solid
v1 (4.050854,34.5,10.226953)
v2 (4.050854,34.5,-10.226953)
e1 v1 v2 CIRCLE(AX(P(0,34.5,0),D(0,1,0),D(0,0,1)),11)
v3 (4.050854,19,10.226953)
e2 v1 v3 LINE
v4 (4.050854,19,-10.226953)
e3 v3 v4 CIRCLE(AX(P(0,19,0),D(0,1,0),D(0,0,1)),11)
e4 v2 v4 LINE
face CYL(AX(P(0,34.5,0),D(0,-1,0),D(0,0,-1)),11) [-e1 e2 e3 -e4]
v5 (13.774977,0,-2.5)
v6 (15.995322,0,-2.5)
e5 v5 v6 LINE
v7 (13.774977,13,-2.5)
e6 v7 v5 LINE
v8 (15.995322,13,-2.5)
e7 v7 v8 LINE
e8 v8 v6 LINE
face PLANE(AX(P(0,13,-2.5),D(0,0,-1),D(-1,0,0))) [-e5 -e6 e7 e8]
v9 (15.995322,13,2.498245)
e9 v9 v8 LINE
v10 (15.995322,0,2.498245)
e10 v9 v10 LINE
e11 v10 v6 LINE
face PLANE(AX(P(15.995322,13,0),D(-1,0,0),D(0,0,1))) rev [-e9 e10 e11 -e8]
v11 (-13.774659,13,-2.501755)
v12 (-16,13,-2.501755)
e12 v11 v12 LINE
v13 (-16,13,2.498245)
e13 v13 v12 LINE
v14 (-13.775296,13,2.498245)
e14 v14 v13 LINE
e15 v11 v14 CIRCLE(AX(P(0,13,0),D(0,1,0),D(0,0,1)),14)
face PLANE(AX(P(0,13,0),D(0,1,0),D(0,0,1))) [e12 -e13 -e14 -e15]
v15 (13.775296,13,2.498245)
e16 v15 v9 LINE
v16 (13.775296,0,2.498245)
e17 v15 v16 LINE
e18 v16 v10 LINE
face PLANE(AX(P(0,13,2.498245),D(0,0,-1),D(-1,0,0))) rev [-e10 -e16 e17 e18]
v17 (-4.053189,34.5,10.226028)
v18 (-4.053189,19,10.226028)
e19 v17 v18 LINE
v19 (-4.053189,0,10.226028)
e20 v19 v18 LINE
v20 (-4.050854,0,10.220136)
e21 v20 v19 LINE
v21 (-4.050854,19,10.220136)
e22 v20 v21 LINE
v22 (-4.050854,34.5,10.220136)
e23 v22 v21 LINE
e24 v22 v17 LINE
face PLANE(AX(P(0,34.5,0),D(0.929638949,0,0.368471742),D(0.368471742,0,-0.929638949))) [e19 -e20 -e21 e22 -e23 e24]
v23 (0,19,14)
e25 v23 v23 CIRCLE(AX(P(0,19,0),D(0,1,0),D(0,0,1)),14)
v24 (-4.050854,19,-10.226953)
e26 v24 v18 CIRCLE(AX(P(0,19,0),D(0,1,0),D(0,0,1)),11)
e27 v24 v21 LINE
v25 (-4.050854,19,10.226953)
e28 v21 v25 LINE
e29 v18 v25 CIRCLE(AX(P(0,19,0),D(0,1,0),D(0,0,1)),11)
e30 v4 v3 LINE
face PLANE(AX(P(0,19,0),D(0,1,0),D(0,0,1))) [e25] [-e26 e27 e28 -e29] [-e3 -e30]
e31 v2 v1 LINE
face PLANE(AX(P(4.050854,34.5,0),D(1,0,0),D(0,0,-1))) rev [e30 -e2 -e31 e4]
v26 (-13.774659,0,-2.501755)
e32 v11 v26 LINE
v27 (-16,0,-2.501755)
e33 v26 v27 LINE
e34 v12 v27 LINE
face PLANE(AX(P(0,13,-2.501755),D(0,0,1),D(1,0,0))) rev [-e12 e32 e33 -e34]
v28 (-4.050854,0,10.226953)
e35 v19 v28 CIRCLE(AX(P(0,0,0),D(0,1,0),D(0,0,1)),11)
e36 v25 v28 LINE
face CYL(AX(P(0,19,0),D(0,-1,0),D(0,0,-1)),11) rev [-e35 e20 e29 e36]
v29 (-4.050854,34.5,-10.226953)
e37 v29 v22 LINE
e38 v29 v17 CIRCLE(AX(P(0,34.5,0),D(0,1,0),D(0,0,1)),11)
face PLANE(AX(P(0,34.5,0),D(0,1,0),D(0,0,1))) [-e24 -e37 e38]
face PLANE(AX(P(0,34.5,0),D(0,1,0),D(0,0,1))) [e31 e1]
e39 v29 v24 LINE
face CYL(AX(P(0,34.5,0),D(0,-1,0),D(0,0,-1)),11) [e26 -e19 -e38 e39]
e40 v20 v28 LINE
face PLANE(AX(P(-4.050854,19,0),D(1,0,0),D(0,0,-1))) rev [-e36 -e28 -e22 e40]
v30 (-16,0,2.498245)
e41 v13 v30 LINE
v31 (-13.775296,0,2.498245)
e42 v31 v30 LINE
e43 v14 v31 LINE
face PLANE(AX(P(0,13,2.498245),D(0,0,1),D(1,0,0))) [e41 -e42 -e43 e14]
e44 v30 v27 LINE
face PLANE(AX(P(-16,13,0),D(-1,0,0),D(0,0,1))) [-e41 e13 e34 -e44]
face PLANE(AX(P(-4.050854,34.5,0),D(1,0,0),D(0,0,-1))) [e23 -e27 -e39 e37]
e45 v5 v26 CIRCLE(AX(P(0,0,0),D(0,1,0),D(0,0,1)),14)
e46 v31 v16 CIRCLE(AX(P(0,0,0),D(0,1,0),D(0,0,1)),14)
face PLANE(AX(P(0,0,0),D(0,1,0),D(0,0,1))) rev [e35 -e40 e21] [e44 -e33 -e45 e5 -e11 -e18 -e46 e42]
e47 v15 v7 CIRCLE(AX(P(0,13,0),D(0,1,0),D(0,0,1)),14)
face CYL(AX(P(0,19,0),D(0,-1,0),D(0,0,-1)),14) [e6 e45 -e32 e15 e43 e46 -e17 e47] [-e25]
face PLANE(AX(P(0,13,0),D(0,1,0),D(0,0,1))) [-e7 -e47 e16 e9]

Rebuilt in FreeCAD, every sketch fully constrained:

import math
import FreeCAD as App
import Part
import Sketcher
Q = App.Units.Quantity

doc = App.newDocument("Part")
body = doc.addObject("PartDesign::Body", "Body")
body.AllowCompound = True

sketch1 = doc.addObject("Sketcher::SketchObject", "Sketch")
body.addObject(sketch1)
sketch1.AttachmentSupport = (doc.XZ_Plane, [""])
sketch1.MapMode = "FlatFace"
sketch1.addGeometry(Part.LineSegment(App.Vector(-4.053189, 10.226028, 0), App.Vector(-4.050854, 10.220136, 0)), False)
sketch1.addGeometry(Part.LineSegment(App.Vector(-4.050854, 10.220136, 0), App.Vector(-4.050854, -10.226953, 0)), False)
sketch1.addGeometry(Part.ArcOfCircle(Part.Circle(App.Vector(0, 0, 0), App.Vector(0, 0, 1), 11), math.radians(-166.854053), math.radians(-111.608312)), False)
sketch1.addGeometry(Part.ArcOfCircle(Part.Circle(App.Vector(0, 0, 0), App.Vector(0, 0, 1), 11), math.radians(166.872829), math.radians(193.145947)), False)
sketch1.addGeometry(Part.ArcOfCircle(Part.Circle(App.Vector(0, 0, 0), App.Vector(0, 0, 1), 11), math.radians(111.621396), math.radians(166.872829)), False)
sketch1.addGeometry(Part.LineSegment(App.Vector(4.050854, -10.226953, 0), App.Vector(4.050854, 10.226953, 0)), False)
sketch1.addGeometry(Part.ArcOfCircle(Part.Circle(App.Vector(0, 0, 0), App.Vector(0, 0, 1), 11), math.radians(13.127171), math.radians(68.391688)), False)
sketch1.addGeometry(Part.ArcOfCircle(Part.Circle(App.Vector(0, 0, 0), App.Vector(0, 0, 1), 11), math.radians(0), math.radians(13.127171)), False)
sketch1.addGeometry(Part.ArcOfCircle(Part.Circle(App.Vector(0, 0, 0), App.Vector(0, 0, 1), 11), math.radians(-13.136559), math.radians(0)), False)
sketch1.addGeometry(Part.ArcOfCircle(Part.Circle(App.Vector(0, 0, 0), App.Vector(0, 0, 1), 11), math.radians(-68.391688), math.radians(-13.136559)), False)
sketch1.addConstraint(Sketcher.Constraint("Coincident", 0, 2, 1, 1))
sketch1.addConstraint(Sketcher.Constraint("Coincident", 1, 2, 2, 2))
sketch1.addConstraint(Sketcher.Constraint("Tangent", 2, 1, 3, 2))
sketch1.addConstraint(Sketcher.Constraint("Tangent", 3, 1, 4, 2))
sketch1.addConstraint(Sketcher.Constraint("Coincident", 4, 1, 0, 1))
sketch1.addConstraint(Sketcher.Constraint("Coincident", 5, 2, 6, 2))
sketch1.addConstraint(Sketcher.Constraint("Tangent", 6, 1, 7, 2))
sketch1.addConstraint(Sketcher.Constraint("Tangent", 7, 1, 8, 2))
sketch1.addConstraint(Sketcher.Constraint("Tangent", 8, 1, 9, 2))
sketch1.addConstraint(Sketcher.Constraint("Coincident", 9, 1, 5, 1))
sketch1.addConstraint(Sketcher.Constraint("Vertical", 1))
sketch1.addConstraint(Sketcher.Constraint("Vertical", 5))
sketch1.addConstraint(Sketcher.Constraint("Coincident", 2, 3, -1, 1))
sketch1.addConstraint(Sketcher.Constraint("Coincident", 4, 3, -1, 1))
sketch1.addConstraint(Sketcher.Constraint("Coincident", 6, 3, -1, 1))
sketch1.addConstraint(Sketcher.Constraint("Coincident", 8, 3, -1, 1))
sketch1.addConstraint(Sketcher.Constraint("Equal", 4, 6))
sketch1.addConstraint(Sketcher.Constraint("Equal", 8, 9))
sketch1.addConstraint(Sketcher.Constraint("PointOnObject", 7, 1, -1))
sketch1.addConstraint(Sketcher.Constraint("Horizontal", 3, 1, 6, 1))
sketch1.addConstraint(Sketcher.Constraint("Horizontal", 1, 2, 9, 1))
sketch1.addConstraint(Sketcher.Constraint("Radius", 2, Q("11 mm")))
sketch1.addConstraint(Sketcher.Constraint("DistanceY", 2, 1, 3, 1, Q("5 mm")))
sketch1.addConstraint(Sketcher.Constraint("DistanceY", 8, 1, -1, 1, Q("2.5 mm")))
sketch1.addConstraint(Sketcher.Constraint("DistanceY", 1, 2, 1, 1, Q("20.44709 mm")))
sketch1.addConstraint(Sketcher.Constraint("DistanceY", 1, 2, 2, 1, Q("7.725198 mm")))
sketch1.addConstraint(Sketcher.Constraint("DistanceX", 3, 1, 0, 2, Q("6.661698 mm")))
sketch1.addConstraint(Sketcher.Constraint("DistanceX", 4, 1, -1, 1, Q("4.053189 mm")))
pad1 = doc.addObject("PartDesign::Pad", "Pad")
body.addObject(pad1)
pad1.Profile = sketch1
pad1.Length = 34.5
pad1.Reversed = True

sketch2 = doc.addObject("Sketcher::SketchObject", "Sketch001")
body.addObject(sketch2)
sketch2.AttachmentSupport = (doc.XZ_Plane, [""])
sketch2.MapMode = "FlatFace"
sketch2.addGeometry(Part.Circle(App.Vector(0, 0, 0), App.Vector(0, 0, 1), 14), False)
sketch2.addGeometry(Part.LineSegment(App.Vector(-4.050854, -10.226953, 0), App.Vector(-4.050854, 10.226953, 0)), False)
sketch2.addGeometry(Part.ArcOfCircle(Part.Circle(App.Vector(0, 0, 0), App.Vector(0, 0, 1), 11), math.radians(111.608312), math.radians(248.391688)), False)
sketch2.addGeometry(Part.ArcOfCircle(Part.Circle(App.Vector(0, 0, 0), App.Vector(0, 0, 1), 11), math.radians(-68.391688), math.radians(68.391688)), False)
sketch2.addGeometry(Part.LineSegment(App.Vector(4.050854, 10.226953, 0), App.Vector(4.050854, -10.226953, 0)), False)
sketch2.addConstraint(Sketcher.Constraint("Coincident", 1, 1, 2, 2))
sketch2.addConstraint(Sketcher.Constraint("Coincident", 2, 1, 1, 2))
sketch2.addConstraint(Sketcher.Constraint("Coincident", 3, 1, 4, 2))
sketch2.addConstraint(Sketcher.Constraint("Coincident", 4, 1, 3, 2))
sketch2.addConstraint(Sketcher.Constraint("Vertical", 1))
sketch2.addConstraint(Sketcher.Constraint("Vertical", 4))
sketch2.addConstraint(Sketcher.Constraint("Coincident", 0, 3, -1, 1))
sketch2.addConstraint(Sketcher.Constraint("Coincident", 2, 3, -1, 1))
sketch2.addConstraint(Sketcher.Constraint("Coincident", 3, 3, -1, 1))
sketch2.addConstraint(Sketcher.Constraint("Equal", 2, 3))
sketch2.addConstraint(Sketcher.Constraint("Horizontal", 1, 1, 3, 1))
sketch2.addConstraint(Sketcher.Constraint("Diameter", 0, Q("28 mm")))
sketch2.addConstraint(Sketcher.Constraint("Radius", 2, Q("11 mm")))
sketch2.addConstraint(Sketcher.Constraint("DistanceY", 1, 1, 1, 2, Q("20.453907 mm")))
pad2 = doc.addObject("PartDesign::Pad", "Pad001")
body.addObject(pad2)
pad2.Profile = sketch2
pad2.Length = 19
pad2.Reversed = True

sketch3 = doc.addObject("Sketcher::SketchObject", "Sketch002")
body.addObject(sketch3)
sketch3.AttachmentSupport = (doc.XZ_Plane, [""])
sketch3.MapMode = "FlatFace"
sketch3.addGeometry(Part.LineSegment(App.Vector(-16, 2.498245, 0), App.Vector(-13.775296, 2.498245, 0)), False)
sketch3.addGeometry(Part.ArcOfCircle(Part.Circle(App.Vector(0, 0, 0), App.Vector(0, 0, 1), 14), math.radians(169.72074), math.radians(190.293861)), False)
sketch3.addGeometry(Part.LineSegment(App.Vector(-13.774659, -2.501755, 0), App.Vector(-16, -2.501755, 0)), False)
sketch3.addGeometry(Part.LineSegment(App.Vector(-16, -2.501755, 0), App.Vector(-16, 2.498245, 0)), False)
sketch3.addGeometry(Part.ArcOfCircle(Part.Circle(App.Vector(0, 0, 0), App.Vector(0, 0, 1), 14), math.radians(0), math.radians(10.27926)), False)
sketch3.addGeometry(Part.LineSegment(App.Vector(13.775296, 2.498245, 0), App.Vector(15.995322, 2.498245, 0)), False)
sketch3.addGeometry(Part.LineSegment(App.Vector(15.995322, 2.498245, 0), App.Vector(15.995322, -2.5, 0)), False)
sketch3.addGeometry(Part.LineSegment(App.Vector(15.995322, -2.5, 0), App.Vector(13.774977, -2.5, 0)), False)
sketch3.addGeometry(Part.ArcOfCircle(Part.Circle(App.Vector(0, 0, 0), App.Vector(0, 0, 1), 14), math.radians(-10.286561), math.radians(0)), False)
sketch3.addConstraint(Sketcher.Constraint("Coincident", 0, 2, 1, 1))
sketch3.addConstraint(Sketcher.Constraint("Coincident", 1, 2, 2, 1))
sketch3.addConstraint(Sketcher.Constraint("Coincident", 2, 2, 3, 1))
sketch3.addConstraint(Sketcher.Constraint("Coincident", 3, 2, 0, 1))
sketch3.addConstraint(Sketcher.Constraint("Coincident", 4, 2, 5, 1))
sketch3.addConstraint(Sketcher.Constraint("Coincident", 5, 2, 6, 1))
sketch3.addConstraint(Sketcher.Constraint("Coincident", 6, 2, 7, 1))
sketch3.addConstraint(Sketcher.Constraint("Coincident", 7, 2, 8, 1))
sketch3.addConstraint(Sketcher.Constraint("Tangent", 8, 2, 4, 1))
sketch3.addConstraint(Sketcher.Constraint("Horizontal", 0))
sketch3.addConstraint(Sketcher.Constraint("Horizontal", 2))
sketch3.addConstraint(Sketcher.Constraint("Vertical", 3))
sketch3.addConstraint(Sketcher.Constraint("Horizontal", 5))
sketch3.addConstraint(Sketcher.Constraint("Vertical", 6))
sketch3.addConstraint(Sketcher.Constraint("Horizontal", 7))
sketch3.addConstraint(Sketcher.Constraint("Coincident", 1, 3, -1, 1))
sketch3.addConstraint(Sketcher.Constraint("Coincident", 4, 3, -1, 1))
sketch3.addConstraint(Sketcher.Constraint("Equal", 1, 4))
sketch3.addConstraint(Sketcher.Constraint("Equal", 4, 8))
sketch3.addConstraint(Sketcher.Constraint("PointOnObject", 8, 2, -1))
sketch3.addConstraint(Sketcher.Constraint("Horizontal", 3, 2, 4, 2))
sketch3.addConstraint(Sketcher.Constraint("Radius", 1, Q("14 mm")))
sketch3.addConstraint(Sketcher.Constraint("DistanceY", 3, 1, 3, 2, Q("5 mm")))
sketch3.addConstraint(Sketcher.Constraint("DistanceX", 2, 2, -1, 1, Q("16 mm")))
sketch3.addConstraint(Sketcher.Constraint("DistanceY", 6, 2, -1, 1, Q("2.5 mm")))
sketch3.addConstraint(Sketcher.Constraint("DistanceX", 2, 2, 2, 1, Q("2.225341 mm")))
sketch3.addConstraint(Sketcher.Constraint("DistanceX", 5, 1, 5, 2, Q("2.220027 mm")))
pad3 = doc.addObject("PartDesign::Pad", "Pad002")
body.addObject(pad3)
pad3.Profile = sketch3
pad3.Length = 13
pad3.Reversed = True

doc.recompute()
